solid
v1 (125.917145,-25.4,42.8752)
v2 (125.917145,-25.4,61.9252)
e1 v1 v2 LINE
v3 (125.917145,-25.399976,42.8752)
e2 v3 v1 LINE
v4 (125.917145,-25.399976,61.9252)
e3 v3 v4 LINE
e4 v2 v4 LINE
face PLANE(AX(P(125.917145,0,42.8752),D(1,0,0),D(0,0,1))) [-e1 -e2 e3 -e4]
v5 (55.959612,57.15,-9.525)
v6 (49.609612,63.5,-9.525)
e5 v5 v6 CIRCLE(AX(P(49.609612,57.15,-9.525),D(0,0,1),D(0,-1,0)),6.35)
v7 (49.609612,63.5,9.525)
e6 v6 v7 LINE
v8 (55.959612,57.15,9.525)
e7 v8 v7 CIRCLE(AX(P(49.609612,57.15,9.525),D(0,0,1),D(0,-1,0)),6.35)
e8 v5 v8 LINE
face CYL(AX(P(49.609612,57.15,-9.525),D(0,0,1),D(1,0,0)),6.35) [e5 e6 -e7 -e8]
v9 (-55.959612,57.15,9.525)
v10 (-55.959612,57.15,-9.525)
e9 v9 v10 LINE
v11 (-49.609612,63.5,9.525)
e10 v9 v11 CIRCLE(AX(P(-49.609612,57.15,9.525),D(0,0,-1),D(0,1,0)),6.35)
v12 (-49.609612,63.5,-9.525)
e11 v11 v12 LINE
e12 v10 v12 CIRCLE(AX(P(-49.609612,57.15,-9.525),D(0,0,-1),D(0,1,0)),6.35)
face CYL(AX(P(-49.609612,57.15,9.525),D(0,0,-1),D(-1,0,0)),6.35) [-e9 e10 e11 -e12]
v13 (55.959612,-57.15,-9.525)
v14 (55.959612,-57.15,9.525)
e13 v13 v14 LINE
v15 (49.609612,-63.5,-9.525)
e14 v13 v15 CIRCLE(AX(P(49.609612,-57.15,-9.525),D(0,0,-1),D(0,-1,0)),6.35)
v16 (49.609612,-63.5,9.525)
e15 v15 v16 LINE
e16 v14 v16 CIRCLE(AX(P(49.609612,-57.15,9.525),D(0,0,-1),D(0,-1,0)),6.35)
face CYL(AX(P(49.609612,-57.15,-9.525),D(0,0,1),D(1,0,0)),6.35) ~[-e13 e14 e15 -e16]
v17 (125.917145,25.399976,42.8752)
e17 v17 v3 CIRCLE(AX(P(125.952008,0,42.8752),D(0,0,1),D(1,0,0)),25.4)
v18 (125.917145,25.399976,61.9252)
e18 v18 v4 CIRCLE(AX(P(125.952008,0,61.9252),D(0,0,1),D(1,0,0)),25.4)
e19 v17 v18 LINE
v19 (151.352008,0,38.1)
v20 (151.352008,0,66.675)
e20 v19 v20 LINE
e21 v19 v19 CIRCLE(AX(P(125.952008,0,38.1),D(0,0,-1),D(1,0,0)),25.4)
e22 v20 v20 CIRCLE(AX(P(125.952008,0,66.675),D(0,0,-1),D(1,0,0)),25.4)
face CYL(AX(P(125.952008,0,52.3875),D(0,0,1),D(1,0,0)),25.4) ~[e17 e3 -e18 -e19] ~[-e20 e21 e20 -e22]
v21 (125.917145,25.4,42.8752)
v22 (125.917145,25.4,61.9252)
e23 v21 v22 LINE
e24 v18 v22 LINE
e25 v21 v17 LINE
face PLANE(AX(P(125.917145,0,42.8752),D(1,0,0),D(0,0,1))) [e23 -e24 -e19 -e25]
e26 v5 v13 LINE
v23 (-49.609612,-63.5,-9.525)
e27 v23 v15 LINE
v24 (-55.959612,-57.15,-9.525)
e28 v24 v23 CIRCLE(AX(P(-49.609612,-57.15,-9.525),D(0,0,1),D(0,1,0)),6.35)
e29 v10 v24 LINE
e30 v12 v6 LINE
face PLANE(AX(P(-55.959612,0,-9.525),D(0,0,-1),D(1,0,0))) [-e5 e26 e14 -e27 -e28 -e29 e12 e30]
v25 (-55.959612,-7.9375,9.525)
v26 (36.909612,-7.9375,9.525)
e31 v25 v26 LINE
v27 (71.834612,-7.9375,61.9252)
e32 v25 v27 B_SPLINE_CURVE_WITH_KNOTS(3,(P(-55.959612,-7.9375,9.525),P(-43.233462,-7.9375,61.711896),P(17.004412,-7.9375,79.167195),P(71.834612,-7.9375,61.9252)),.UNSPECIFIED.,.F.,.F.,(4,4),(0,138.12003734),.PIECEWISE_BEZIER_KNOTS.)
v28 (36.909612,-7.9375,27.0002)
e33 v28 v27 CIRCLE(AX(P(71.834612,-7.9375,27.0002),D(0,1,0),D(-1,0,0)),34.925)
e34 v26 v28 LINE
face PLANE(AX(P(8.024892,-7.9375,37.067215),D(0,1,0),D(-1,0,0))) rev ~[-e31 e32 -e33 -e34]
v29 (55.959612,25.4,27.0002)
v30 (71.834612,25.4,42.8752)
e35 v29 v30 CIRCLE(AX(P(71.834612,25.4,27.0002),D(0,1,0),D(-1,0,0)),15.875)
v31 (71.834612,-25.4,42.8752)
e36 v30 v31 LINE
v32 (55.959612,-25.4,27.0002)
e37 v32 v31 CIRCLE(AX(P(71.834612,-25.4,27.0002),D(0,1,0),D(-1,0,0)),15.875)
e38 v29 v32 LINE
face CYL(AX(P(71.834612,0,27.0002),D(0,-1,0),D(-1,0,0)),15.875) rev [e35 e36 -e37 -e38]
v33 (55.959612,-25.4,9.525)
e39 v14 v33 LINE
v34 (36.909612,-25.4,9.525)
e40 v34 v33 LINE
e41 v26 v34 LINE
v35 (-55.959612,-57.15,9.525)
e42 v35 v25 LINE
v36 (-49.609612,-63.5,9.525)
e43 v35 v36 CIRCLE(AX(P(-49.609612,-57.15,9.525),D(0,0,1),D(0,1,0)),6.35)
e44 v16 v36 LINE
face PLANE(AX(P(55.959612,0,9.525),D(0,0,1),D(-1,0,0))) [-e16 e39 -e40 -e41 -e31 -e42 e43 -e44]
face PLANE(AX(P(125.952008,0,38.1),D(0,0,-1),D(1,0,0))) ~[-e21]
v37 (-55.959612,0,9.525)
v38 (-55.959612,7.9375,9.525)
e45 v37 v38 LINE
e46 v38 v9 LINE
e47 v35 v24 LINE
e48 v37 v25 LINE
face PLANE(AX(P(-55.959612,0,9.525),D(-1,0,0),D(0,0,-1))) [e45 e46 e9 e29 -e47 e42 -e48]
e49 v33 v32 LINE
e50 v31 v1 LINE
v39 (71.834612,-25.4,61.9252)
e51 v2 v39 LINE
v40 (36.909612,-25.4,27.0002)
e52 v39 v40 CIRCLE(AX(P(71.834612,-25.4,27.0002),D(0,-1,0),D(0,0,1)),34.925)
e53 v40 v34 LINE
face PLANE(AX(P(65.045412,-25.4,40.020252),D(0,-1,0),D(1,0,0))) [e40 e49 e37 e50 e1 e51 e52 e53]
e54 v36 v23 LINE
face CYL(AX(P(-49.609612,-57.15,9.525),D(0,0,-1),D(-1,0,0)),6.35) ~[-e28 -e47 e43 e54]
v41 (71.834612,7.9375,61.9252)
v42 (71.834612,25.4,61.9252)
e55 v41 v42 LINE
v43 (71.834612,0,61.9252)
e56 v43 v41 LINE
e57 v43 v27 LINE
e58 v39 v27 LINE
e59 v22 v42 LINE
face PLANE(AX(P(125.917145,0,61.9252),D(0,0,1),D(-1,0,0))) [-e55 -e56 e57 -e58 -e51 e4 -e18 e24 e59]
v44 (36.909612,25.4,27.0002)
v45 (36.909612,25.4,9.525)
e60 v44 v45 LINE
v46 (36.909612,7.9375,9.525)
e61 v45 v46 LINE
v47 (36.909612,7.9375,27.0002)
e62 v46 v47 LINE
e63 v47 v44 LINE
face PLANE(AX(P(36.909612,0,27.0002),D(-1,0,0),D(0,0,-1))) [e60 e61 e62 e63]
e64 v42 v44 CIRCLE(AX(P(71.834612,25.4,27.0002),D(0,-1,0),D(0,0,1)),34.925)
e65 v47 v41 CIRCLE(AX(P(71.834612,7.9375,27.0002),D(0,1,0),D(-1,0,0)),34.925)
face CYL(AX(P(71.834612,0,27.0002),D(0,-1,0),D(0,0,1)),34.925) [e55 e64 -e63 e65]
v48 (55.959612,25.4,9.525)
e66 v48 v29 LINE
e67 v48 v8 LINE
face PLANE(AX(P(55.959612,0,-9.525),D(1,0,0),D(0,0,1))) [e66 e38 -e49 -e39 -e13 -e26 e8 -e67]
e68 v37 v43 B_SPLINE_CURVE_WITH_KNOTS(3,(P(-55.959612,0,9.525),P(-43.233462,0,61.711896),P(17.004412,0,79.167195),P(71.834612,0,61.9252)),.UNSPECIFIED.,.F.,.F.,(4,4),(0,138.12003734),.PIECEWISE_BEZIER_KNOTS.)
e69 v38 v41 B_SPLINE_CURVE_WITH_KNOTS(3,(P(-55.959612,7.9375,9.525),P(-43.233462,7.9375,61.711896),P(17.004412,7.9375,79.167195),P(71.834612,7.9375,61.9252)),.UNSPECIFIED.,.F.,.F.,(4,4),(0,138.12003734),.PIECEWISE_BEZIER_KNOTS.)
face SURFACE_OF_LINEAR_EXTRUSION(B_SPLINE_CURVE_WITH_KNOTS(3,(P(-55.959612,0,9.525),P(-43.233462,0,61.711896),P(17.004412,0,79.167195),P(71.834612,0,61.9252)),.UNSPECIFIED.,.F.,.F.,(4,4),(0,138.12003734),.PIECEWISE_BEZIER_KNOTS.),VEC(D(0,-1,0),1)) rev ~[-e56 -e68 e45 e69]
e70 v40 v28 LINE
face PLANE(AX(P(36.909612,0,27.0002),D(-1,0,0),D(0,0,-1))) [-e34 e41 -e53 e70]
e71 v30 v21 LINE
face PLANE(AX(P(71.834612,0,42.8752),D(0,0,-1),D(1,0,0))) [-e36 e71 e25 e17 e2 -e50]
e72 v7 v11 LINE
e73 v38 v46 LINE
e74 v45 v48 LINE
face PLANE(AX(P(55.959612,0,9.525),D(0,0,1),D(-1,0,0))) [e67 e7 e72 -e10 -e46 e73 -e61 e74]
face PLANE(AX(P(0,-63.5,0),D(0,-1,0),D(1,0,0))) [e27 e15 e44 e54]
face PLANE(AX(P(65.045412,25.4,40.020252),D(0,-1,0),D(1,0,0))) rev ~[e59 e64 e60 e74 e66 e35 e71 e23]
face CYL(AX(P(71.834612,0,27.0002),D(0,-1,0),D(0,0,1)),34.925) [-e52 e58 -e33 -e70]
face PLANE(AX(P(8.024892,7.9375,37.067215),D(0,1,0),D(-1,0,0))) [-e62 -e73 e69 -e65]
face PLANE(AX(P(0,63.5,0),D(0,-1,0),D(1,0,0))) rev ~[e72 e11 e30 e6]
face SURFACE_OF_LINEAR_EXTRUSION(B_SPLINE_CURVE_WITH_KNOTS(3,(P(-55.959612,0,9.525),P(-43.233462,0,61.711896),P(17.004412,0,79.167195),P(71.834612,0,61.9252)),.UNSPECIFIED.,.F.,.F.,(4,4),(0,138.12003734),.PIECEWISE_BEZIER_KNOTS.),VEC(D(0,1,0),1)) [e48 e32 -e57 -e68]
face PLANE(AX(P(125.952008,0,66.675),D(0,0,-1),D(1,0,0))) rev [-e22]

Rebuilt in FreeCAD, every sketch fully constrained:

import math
import FreeCAD as App
import Part
import Sketcher

V = App.Vector
Q = App.Units.Quantity


def edges_at(feature, points):
    """Names of the edges that pass closest to the given points."""
    edges = feature.Shape.Edges
    near = lambda p: min(range(len(edges)), key=lambda i: edges[i].distToShape(Part.Vertex(*p))[0])
    return sorted({f"Edge{near(p) + 1}" for p in points})

doc = App.newDocument("Part")
body = doc.addObject("PartDesign::Body", "Body")

# Sketch on XZ plane
sketch1 = doc.addObject("Sketcher::SketchObject", "Sketch")
body.addObject(sketch1)
sketch1.AttachmentSupport = (doc.XZ_Plane, [""])
sketch1.MapMode = "FlatFace"
sketch1.addGeometry([
    Part.LineSegment(V(-55.959612, 9.525, 0), V(-55.959612, -9.525, 0)),
    Part.LineSegment(V(-55.959612, -9.525, 0), V(55.959612, -9.525, 0)),
    Part.LineSegment(V(55.959612, -9.525, 0), V(55.959612, 9.525, 0)),
    Part.LineSegment(V(55.959612, 9.525, 0), V(-55.959612, 9.525, 0)),
], False)
sketch1.addConstraint([
    Sketcher.Constraint("Coincident", 0, 2, 1, 1),
    Sketcher.Constraint("Coincident", 1, 2, 2, 1),
    Sketcher.Constraint("Coincident", 2, 2, 3, 1),
    Sketcher.Constraint("Coincident", 3, 2, 0, 1),
    Sketcher.Constraint("Vertical", 0),
    Sketcher.Constraint("Horizontal", 1),
    Sketcher.Constraint("Vertical", 2),
    Sketcher.Constraint("Horizontal", 3),
    Sketcher.Constraint("Symmetric", 0, 2, 2, 2, -1, 1),
    Sketcher.Constraint("DistanceY", 0, 2, 0, 1, Q("0.75 in")),
    Sketcher.Constraint("DistanceX", 1, 1, 1, 2, 111.919224),
])
pad1 = doc.addObject("PartDesign::Pad", "Pad")
body.addObject(pad1)
pad1.Profile = sketch1
pad1.Length = Q("5 in")
pad1.Midplane = True

# Sketch on XZ plane
sketch2 = doc.addObject("Sketcher::SketchObject", "Sketch001")
body.addObject(sketch2)
sketch2.AttachmentSupport = (doc.XZ_Plane, [""])
sketch2.MapMode = "FlatFace"
sketch2.addGeometry([
    Part.LineSegment(V(36.909612, 27.0002, 0), V(36.909612, 9.525, 0)),  # 0
    Part.LineSegment(V(36.909612, 9.525, 0), V(55.959612, 9.525, 0)),  # 1
    Part.LineSegment(V(55.959612, 9.525, 0), V(55.959612, 27.0002, 0)),  # 2
    Part.ArcOfCircle(Part.Circle(V(71.834612, 27.0002, 0), V(0, 0, 1), 15.875), math.radians(90), math.radians(180)),  # 3
    Part.LineSegment(V(71.834612, 42.8752, 0), V(125.917145, 42.8752, 0)),  # 4
    Part.LineSegment(V(125.917145, 42.8752, 0), V(125.917145, 61.9252, 0)),  # 5
    Part.LineSegment(V(125.917145, 61.9252, 0), V(71.834612, 61.9252, 0)),  # 6
    Part.ArcOfCircle(Part.Circle(V(71.834612, 27.0002, 0), V(0, 0, 1), 34.925), math.radians(90), math.radians(180)),  # 7
], False)
sketch2.addConstraint([
    Sketcher.Constraint("Coincident", 0, 2, 1, 1),
    Sketcher.Constraint("Coincident", 1, 2, 2, 1),
    Sketcher.Constraint("Tangent", 2, 2, 3, 2),
    Sketcher.Constraint("Tangent", 3, 1, 4, 1),
    Sketcher.Constraint("Coincident", 4, 2, 5, 1),
    Sketcher.Constraint("Coincident", 5, 2, 6, 1),
    Sketcher.Constraint("Tangent", 6, 2, 7, 1),
    Sketcher.Constraint("Tangent", 7, 2, 0, 1),
    Sketcher.Constraint("Vertical", 0),
    Sketcher.Constraint("Horizontal", 1),
    Sketcher.Constraint("Vertical", 2),
    Sketcher.Constraint("Horizontal", 4),
    Sketcher.Constraint("Vertical", 5),
    Sketcher.Constraint("Horizontal", 6),
    Sketcher.Constraint("Coincident", 7, 3, 3, 3),
    Sketcher.Constraint("Radius", 3, Q("0.625 in")),
    Sketcher.Constraint("Radius", 7, Q("1.375 in")),
    Sketcher.Constraint("DistanceY", 0, 2, 0, 1, Q("0.688 in")),
    Sketcher.Constraint("DistanceY", -1, 1, 3, 3, Q("1.063 in")),
    Sketcher.Constraint("DistanceX", 4, 1, 4, 2, 54.082533),
    Sketcher.Constraint("DistanceX", -1, 1, 3, 3, 71.834612),
])
pad2 = doc.addObject("PartDesign::Pad", "Pad001")
body.addObject(pad2)
pad2.Profile = sketch2
pad2.Length = Q("2 in")
pad2.Midplane = True

# Sketch on XZ plane
sketch3 = doc.addObject("Sketcher::SketchObject", "Sketch002")
body.addObject(sketch3)
sketch3.AttachmentSupport = (doc.XZ_Plane, [""])
sketch3.MapMode = "FlatFace"
sketch3.addGeometry([
    Part.BSplineCurve([V(-55.959612, 9.525, 0), V(-43.233462, 61.711896, 0), V(17.004412, 79.167195, 0), V(71.834612, 61.9252, 0)], [4, 4], [0, 138.12003734], False, 3, [1, 1, 1, 1], False),
    Part.LineSegment(V(-55.959612, 9.525, 0), V(36.909612, 9.525, 0)),
    Part.LineSegment(V(36.909612, 9.525, 0), V(36.909612, 27.0002, 0)),
    Part.ArcOfCircle(Part.Circle(V(71.834612, 27.0002, 0), V(0, 0, 1), 34.925), math.radians(90), math.radians(180)),
], False)
sketch3.addConstraint([
    Sketcher.Constraint("Block", 0),
    Sketcher.Constraint("Coincident", 0, 1, 1, 1),
    Sketcher.Constraint("Coincident", 1, 2, 2, 1),
    Sketcher.Constraint("Tangent", 2, 2, 3, 2),
    Sketcher.Constraint("Coincident", 3, 1, 0, 2),
    Sketcher.Constraint("Horizontal", 1),
    Sketcher.Constraint("Vertical", 2),
    Sketcher.Constraint("Radius", 3, Q("1.375 in")),
    Sketcher.Constraint("DistanceX", 2, 2, 3, 1, Q("1.375 in")),
])
pad3 = doc.addObject("PartDesign::Pad", "Pad002")
body.addObject(pad3)
pad3.Profile = sketch3
pad3.Length = Q("0.625 in")
pad3.Midplane = True

# Sketch on XZ plane
sketch4 = doc.addObject("Sketcher::SketchObject", "Sketch003")
body.addObject(sketch4)
sketch4.AttachmentSupport = (doc.XZ_Plane, [""])
sketch4.MapMode = "FlatFace"
sketch4.addGeometry([
    Part.LineSegment(V(125.952008, 66.675, 0), V(125.952008, 38.1, 0)),
    Part.LineSegment(V(125.952008, 38.1, 0), V(151.352008, 38.1, 0)),
    Part.LineSegment(V(151.352008, 38.1, 0), V(151.352008, 66.675, 0)),
    Part.LineSegment(V(151.352008, 66.675, 0), V(125.952008, 66.675, 0)),
], False)
sketch4.addGeometry(Part.LineSegment(V(125.952008, 66.675, 0), V(125.952008, 38.1, 0)), True)  # axis
sketch4.addConstraint([
    Sketcher.Constraint("Coincident", 0, 2, 1, 1),
    Sketcher.Constraint("Coincident", 1, 2, 2, 1),
    Sketcher.Constraint("Coincident", 2, 2, 3, 1),
    Sketcher.Constraint("Coincident", 3, 2, 0, 1),
    Sketcher.Constraint("Vertical", 0),
    Sketcher.Constraint("Horizontal", 1),
    Sketcher.Constraint("Vertical", 2),
    Sketcher.Constraint("Horizontal", 3),
    Sketcher.Constraint("Vertical", 4),
    Sketcher.Constraint("Coincident", 4, 1, 3, 2),
    Sketcher.Constraint("Horizontal", 1, 2, 4, 2),
    Sketcher.Constraint("DistanceX", 1, 1, 1, 2, Q("1 in")),
    Sketcher.Constraint("DistanceY", -1, 1, 0, 2, Q("1.5 in")),
    Sketcher.Constraint("DistanceY", 0, 2, 0, 1, Q("1.125 in")),
    Sketcher.Constraint("DistanceX", -1, 1, 0, 2, 125.952008),
])
revolution = doc.addObject("PartDesign::Revolution", "Revolution")
body.addObject(revolution)
revolution.Profile = sketch4
revolution.ReferenceAxis = (sketch4, ["Axis0"])
revolution.Angle = 360
doc.recompute()

fillet = doc.addObject("PartDesign::Fillet", "Fillet")
body.addObject(fillet)
fillet.Base = (revolution, edges_at(revolution, [
    (-55.96, -63.5, 0),
    (55.96, -63.5, 0),
    (55.96, 63.5, 0),
    (-55.96, 63.5, 0),
]))
fillet.Radius = Q("0.25 in")

doc.recompute()
